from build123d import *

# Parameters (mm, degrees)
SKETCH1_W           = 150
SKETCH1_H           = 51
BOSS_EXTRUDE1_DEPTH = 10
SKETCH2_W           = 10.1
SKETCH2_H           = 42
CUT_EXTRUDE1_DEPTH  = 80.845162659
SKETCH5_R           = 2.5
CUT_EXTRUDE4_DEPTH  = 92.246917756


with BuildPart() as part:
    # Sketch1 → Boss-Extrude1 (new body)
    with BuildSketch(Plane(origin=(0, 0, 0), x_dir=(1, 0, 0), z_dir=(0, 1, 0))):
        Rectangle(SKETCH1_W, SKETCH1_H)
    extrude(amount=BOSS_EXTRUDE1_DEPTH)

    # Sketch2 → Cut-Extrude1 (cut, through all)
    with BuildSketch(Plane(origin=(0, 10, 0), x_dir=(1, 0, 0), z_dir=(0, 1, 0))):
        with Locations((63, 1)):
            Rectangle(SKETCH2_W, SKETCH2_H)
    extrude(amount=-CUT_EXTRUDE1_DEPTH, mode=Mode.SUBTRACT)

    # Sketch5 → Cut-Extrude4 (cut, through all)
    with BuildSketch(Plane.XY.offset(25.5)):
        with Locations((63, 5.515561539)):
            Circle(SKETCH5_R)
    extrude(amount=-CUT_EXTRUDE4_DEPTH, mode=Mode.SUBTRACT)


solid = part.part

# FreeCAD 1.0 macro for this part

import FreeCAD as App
import Part
import Sketcher
from FreeCAD import Vector
Q = App.Units.Quantity


def add_polygon(sketch, points):
    """Adds a closed chain of lines whose ends are joined by coincident constraints."""
    first, n = sketch.GeometryCount, len(points)
    for a, b in zip(points, points[1:] + points[:1]):
        sketch.addGeometry(Part.LineSegment(App.Vector(*a, 0), App.Vector(*b, 0)), False)
    for i in range(n):
        sketch.addConstraint(Sketcher.Constraint("Coincident", first + i, 2, first + (i + 1) % n, 1))

doc = App.newDocument("Part")
body = doc.addObject("PartDesign::Body", "Body")

sketch1 = doc.addObject("Sketcher::SketchObject", "Sketch")
body.addObject(sketch1)
sketch1.AttachmentSupport = (doc.XZ_Plane, [""])
sketch1.MapMode = "FlatFace"
add_polygon(sketch1, [(-75, -26), (-75, 26), (75, 26), (75, -26)])
sketch1.addConstraint([
    Sketcher.Constraint("Vertical", 0),
    Sketcher.Constraint("Horizontal", 1),
    Sketcher.Constraint("Vertical", 2),
    Sketcher.Constraint("Horizontal", 3),
    Sketcher.Constraint("Symmetric", 0, 2, 2, 2, -1, 1),
    Sketcher.Constraint("DistanceX", 1, 1, 1, 2, Q("150 mm")),
    Sketcher.Constraint("DistanceY", 0, 1, 0, 2, Q("51 mm")),
])
pad1 = doc.addObject("PartDesign::Pad", "Pad")
body.addObject(pad1)
pad1.Profile = sketch1
pad1.Length = 10
pad1.Reversed = True

sketch2 = doc.addObject("Sketcher::SketchObject", "Sketch001")
body.addObject(sketch2)
sketch2.AttachmentSupport = (doc.XZ_Plane, [""])
sketch2.MapMode = "FlatFace"
sketch2.AttachmentOffset = App.Placement(Vector(0, 0, -10), App.Rotation())
add_polygon(sketch2, [(58, -22), (58, 20), (68, 20), (68, -22)])
sketch2.addConstraint([
    Sketcher.Constraint("Vertical", 0),
    Sketcher.Constraint("Horizontal", 1),
    Sketcher.Constraint("Vertical", 2),
    Sketcher.Constraint("Horizontal", 3),
    Sketcher.Constraint("DistanceY", 0, 1, 0, 2, Q("42 mm")),
    Sketcher.Constraint("DistanceX", 1, 1, 1, 2, Q("10.1 mm")),
    Sketcher.Constraint("DistanceY", -1, 1, 0, 2, Q("20 mm")),
    Sketcher.Constraint("DistanceX", -1, 1, 0, 2, Q("57.95 mm")),
])
pocket1 = doc.addObject("PartDesign::Pocket", "Pocket")
body.addObject(pocket1)
pocket1.Profile = sketch2
pocket1.Type = "ThroughAll"
pocket1.Reversed = True

sketch3 = doc.addObject("Sketcher::SketchObject", "Sketch002")
body.addObject(sketch3)
sketch3.AttachmentSupport = (doc.XY_Plane, [""])
sketch3.MapMode = "FlatFace"
sketch3.AttachmentOffset = App.Placement(Vector(0, 0, 25.5), App.Rotation())
sketch3.addGeometry(Part.Circle(Vector(63, 5.5, 0), Vector(0, 0, 1), 2.5), False)
sketch3.addConstraint([
    Sketcher.Constraint("Diameter", 0, Q("5 mm")),
    Sketcher.Constraint("DistanceX", -1, 1, 0, 3, Q("63 mm")),
    Sketcher.Constraint("DistanceY", -1, 1, 0, 3, Q("5.515562 mm")),
])
pocket2 = doc.addObject("PartDesign::Pocket", "Pocket001")
body.addObject(pocket2)
pocket2.Profile = sketch3
pocket2.Type = "ThroughAll"

doc.recompute()
